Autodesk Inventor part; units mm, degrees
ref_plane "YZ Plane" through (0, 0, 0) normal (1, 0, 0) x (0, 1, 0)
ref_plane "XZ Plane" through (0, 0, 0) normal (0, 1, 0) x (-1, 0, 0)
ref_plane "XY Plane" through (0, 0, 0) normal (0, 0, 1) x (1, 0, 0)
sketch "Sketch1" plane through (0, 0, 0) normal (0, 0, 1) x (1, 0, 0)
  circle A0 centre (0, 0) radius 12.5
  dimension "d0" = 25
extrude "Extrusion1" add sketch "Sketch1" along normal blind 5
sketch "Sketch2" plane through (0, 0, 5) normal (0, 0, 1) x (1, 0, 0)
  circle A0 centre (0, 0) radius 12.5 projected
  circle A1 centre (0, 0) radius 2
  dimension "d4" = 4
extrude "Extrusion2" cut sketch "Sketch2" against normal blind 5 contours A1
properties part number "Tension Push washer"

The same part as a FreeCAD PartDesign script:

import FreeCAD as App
import Part
import Sketcher
Q = App.Units.Quantity

doc = App.newDocument("Part")
body = doc.addObject("PartDesign::Body", "Body")

sketch1 = body.newObject("Sketcher::SketchObject", "Sketch")
sketch1.AttachmentSupport = (doc.getObject("XY_Plane"), [""])
sketch1.MapMode = "FlatFace"
sketch1.addGeometry(Part.Circle(App.Vector(0, 0, 0), App.Vector(0, 0, 1), 12), False)
sketch1.addConstraint([
    Sketcher.Constraint("Coincident", 0, 3, -1, 1),
    Sketcher.Constraint("Diameter", 0, Q("25 mm")),
])
pad1 = body.newObject("PartDesign::Pad", "Pad")
pad1.Profile = sketch1
pad1.Length = 5

sketch2 = body.newObject("Sketcher::SketchObject", "Sketch001")
sketch2.AttachmentSupport = (doc.getObject("XY_Plane"), [""])
sketch2.MapMode = "FlatFace"
sketch2.AttachmentOffset = App.Placement(App.Vector(0, 0, 5), App.Rotation())
sketch2.addGeometry(Part.Circle(App.Vector(0, 0, 0), App.Vector(0, 0, 1), 2), False)
sketch2.addConstraint([
    Sketcher.Constraint("Coincident", 0, 3, -1, 1),
    Sketcher.Constraint("Diameter", 0, Q("4 mm")),
])
pocket1 = body.newObject("PartDesign::Pocket", "Pocket")
pocket1.Profile = sketch2
pocket1.Length = 5

doc.recompute()
